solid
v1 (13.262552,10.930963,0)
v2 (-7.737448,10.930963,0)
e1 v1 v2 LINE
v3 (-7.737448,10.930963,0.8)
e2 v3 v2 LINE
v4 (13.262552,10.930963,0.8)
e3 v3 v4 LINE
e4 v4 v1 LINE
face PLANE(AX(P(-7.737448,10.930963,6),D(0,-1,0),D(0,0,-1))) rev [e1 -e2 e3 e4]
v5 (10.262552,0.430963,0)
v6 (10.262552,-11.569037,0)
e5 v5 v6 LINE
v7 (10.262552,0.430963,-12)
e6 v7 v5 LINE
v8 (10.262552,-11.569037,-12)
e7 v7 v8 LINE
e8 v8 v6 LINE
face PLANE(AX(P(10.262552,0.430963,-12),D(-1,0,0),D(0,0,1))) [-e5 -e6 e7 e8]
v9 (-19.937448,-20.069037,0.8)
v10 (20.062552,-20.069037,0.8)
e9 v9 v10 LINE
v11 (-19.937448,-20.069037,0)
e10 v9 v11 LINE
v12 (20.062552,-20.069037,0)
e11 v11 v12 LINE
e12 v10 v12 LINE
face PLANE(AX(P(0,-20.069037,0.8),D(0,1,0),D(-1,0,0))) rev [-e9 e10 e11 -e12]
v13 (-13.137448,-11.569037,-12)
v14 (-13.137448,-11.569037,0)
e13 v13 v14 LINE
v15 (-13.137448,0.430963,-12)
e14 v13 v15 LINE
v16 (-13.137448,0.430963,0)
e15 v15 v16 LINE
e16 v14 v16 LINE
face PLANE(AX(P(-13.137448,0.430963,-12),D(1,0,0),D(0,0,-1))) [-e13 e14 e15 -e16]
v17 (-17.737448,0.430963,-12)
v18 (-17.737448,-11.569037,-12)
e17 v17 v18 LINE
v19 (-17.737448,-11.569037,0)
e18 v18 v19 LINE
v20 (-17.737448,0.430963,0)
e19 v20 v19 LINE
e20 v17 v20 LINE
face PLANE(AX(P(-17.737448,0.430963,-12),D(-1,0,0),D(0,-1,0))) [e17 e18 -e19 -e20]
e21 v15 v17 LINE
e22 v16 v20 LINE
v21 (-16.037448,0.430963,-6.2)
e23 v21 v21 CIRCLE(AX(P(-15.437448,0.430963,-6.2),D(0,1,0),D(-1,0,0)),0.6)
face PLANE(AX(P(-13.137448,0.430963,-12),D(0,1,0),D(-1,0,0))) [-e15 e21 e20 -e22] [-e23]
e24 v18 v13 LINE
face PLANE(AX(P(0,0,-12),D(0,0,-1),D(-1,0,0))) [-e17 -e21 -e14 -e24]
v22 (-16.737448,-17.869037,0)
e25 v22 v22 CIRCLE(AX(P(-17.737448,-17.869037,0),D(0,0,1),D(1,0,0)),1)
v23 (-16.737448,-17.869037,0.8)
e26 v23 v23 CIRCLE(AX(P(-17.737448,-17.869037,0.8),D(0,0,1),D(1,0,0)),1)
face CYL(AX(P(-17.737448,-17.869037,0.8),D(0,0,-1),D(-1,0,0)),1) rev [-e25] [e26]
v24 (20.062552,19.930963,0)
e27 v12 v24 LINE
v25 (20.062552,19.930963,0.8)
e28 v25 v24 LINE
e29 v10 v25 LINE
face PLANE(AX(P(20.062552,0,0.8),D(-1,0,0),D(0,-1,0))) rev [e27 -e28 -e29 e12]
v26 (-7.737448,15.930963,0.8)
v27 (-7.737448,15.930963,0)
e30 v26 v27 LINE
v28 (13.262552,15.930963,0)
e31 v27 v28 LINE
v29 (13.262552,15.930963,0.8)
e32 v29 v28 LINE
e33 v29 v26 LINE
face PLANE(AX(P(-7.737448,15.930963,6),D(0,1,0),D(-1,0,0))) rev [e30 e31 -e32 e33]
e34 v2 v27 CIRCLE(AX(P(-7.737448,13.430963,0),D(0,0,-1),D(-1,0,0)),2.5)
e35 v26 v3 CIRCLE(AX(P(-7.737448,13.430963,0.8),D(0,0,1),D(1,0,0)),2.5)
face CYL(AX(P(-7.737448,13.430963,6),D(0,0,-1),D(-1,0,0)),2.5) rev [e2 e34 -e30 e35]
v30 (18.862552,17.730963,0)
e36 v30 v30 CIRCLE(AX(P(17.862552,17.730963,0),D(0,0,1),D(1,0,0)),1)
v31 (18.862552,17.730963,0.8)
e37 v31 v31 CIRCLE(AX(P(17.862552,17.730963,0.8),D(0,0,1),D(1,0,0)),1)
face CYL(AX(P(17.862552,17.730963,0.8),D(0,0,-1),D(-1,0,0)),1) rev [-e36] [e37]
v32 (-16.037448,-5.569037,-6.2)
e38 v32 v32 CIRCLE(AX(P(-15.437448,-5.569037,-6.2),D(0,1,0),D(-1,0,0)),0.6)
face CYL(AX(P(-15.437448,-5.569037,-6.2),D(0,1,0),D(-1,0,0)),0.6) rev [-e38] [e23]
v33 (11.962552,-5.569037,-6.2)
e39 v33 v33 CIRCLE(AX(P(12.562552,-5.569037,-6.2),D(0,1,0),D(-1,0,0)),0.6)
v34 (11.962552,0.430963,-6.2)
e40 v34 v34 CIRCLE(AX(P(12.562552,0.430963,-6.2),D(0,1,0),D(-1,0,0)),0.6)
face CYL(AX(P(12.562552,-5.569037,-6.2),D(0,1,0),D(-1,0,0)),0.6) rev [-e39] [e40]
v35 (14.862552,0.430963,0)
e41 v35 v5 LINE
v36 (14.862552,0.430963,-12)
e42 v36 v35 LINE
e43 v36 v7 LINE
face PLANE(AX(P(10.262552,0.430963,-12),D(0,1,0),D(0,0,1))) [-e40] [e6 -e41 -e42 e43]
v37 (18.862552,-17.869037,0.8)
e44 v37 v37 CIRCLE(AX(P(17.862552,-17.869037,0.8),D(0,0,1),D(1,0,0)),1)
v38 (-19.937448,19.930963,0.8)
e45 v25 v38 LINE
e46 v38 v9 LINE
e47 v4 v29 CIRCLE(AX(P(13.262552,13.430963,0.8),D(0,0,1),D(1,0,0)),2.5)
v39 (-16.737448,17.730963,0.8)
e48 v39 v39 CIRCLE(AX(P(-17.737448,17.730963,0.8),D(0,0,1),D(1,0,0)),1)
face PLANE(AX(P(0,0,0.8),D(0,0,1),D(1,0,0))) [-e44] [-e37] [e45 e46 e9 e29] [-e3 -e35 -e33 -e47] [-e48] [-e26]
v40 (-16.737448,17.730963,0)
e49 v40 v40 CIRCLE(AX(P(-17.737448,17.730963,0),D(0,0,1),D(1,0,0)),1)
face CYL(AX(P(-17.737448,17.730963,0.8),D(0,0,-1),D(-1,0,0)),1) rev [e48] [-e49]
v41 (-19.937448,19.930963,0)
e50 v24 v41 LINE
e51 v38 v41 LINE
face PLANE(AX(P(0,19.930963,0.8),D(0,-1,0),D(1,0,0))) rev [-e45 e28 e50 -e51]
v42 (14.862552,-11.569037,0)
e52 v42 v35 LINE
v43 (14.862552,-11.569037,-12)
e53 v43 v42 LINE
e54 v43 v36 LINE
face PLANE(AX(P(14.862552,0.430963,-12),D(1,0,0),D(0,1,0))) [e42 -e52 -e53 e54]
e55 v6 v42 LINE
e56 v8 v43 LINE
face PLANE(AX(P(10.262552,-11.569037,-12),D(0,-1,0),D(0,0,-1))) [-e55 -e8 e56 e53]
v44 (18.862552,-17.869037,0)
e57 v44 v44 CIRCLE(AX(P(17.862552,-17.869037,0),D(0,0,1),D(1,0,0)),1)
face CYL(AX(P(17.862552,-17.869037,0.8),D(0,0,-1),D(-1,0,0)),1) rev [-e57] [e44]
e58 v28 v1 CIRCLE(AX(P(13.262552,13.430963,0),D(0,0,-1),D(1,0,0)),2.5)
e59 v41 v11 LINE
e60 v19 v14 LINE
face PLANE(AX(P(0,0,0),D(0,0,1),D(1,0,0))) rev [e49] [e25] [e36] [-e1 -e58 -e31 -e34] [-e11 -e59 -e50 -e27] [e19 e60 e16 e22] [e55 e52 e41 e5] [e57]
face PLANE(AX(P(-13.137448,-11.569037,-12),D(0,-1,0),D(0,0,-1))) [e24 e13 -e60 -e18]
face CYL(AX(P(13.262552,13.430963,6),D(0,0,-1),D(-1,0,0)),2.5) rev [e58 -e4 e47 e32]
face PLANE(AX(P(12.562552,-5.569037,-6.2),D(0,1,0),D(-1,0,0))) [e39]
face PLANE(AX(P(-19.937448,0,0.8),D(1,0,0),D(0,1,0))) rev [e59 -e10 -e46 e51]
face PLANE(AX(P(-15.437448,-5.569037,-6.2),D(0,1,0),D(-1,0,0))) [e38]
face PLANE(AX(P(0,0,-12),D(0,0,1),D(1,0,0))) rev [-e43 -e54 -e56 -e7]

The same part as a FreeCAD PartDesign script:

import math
import FreeCAD as App
import Part
import Sketcher

V = App.Vector
Q = App.Units.Quantity


def add_polygon(sketch, points):
    """Adds a closed chain of lines whose ends are joined by coincident constraints."""
    first, n = sketch.GeometryCount, len(points)
    for a, b in zip(points, points[1:] + points[:1]):
        sketch.addGeometry(Part.LineSegment(App.Vector(*a, 0), App.Vector(*b, 0)), False)
    for i in range(n):
        sketch.addConstraint(Sketcher.Constraint("Coincident", first + i, 2, first + (i + 1) % n, 1))

doc = App.newDocument("Part")
body = doc.addObject("PartDesign::Body", "Body")

# Sketch on XY plane
sketch1 = body.newObject("Sketcher::SketchObject", "Sketch")
sketch1.AttachmentSupport = (doc.getObject("XY_Plane"), [""])
sketch1.MapMode = "FlatFace"
add_polygon(sketch1, [(-19.937448, 19.930963), (-19.937448, -20.069037), (20.062552, -20.069037), (20.062552, 19.930963)])  # lines 0-3
sketch1.addGeometry(Part.Circle(V(-17.737448, -17.869037, 0), V(0, 0, 1), 1), False)  # 4
sketch1.addGeometry(Part.Circle(V(17.862552, -17.869037, 0), V(0, 0, 1), 1), False)  # 5
sketch1.addGeometry(Part.Circle(V(-17.737448, 17.730963, 0), V(0, 0, 1), 1), False)  # 6
sketch1.addGeometry(Part.Circle(V(17.862552, 17.730963, 0), V(0, 0, 1), 1), False)  # 7
sketch1.addConstraint([
    Sketcher.Constraint("Vertical", 0),
    Sketcher.Constraint("Horizontal", 1),
    Sketcher.Constraint("Vertical", 2),
    Sketcher.Constraint("Horizontal", 3),
    Sketcher.Constraint("Equal", 4, 5),
    Sketcher.Constraint("Equal", 5, 6),
    Sketcher.Constraint("Equal", 6, 7),
    Sketcher.Constraint("Horizontal", 4, 3, 5, 3),
    Sketcher.Constraint("Horizontal", 6, 3, 7, 3),
    Sketcher.Constraint("Vertical", 4, 3, 6, 3),
    Sketcher.Constraint("Vertical", 5, 3, 7, 3),
    Sketcher.Constraint("Equal", 3, 0),
    Sketcher.Constraint("Diameter", 4, Q("2 mm")),
    Sketcher.Constraint("DistanceX", 1, 1, 1, 2, Q("40 mm")),
    Sketcher.Constraint("DistanceX", 4, 3, 5, 3, Q("35.6 mm")),
    Sketcher.Constraint("DistanceY", 4, 3, 6, 3, Q("35.6 mm")),
    Sketcher.Constraint("DistanceX", 0, 2, 4, 3, Q("2.2 mm")),
    Sketcher.Constraint("DistanceY", 0, 2, 4, 3, Q("2.2 mm")),
    Sketcher.Constraint("DistanceX", 4, 3, -1, 1, Q("17.737448 mm")),
    Sketcher.Constraint("DistanceY", 4, 3, -1, 1, Q("17.869037 mm")),
])
pad1 = body.newObject("PartDesign::Pad", "Pad")
pad1.Profile = sketch1
pad1.Length = 0.8

# Sketch on XY plane
sketch2 = body.newObject("Sketcher::SketchObject", "Sketch001")
sketch2.AttachmentSupport = (doc.getObject("XY_Plane"), [""])
sketch2.MapMode = "FlatFace"
sketch2.AttachmentOffset = App.Placement(V(0, 0, 0.8), App.Rotation())
add_polygon(sketch2, [(10.262552, 0.430963), (10.262552, -11.569037), (14.862552, -11.569037), (14.862552, 0.430963)])  # lines 0-3
add_polygon(sketch2, [(-17.737448, 0.430963), (-17.737448, -11.569037), (-13.137448, -11.569037), (-13.137448, 0.430963)])  # lines 4-7
sketch2.addConstraint([
    Sketcher.Constraint("Vertical", 0),
    Sketcher.Constraint("Horizontal", 1),
    Sketcher.Constraint("Vertical", 2),
    Sketcher.Constraint("Horizontal", 3),
    Sketcher.Constraint("Vertical", 4),
    Sketcher.Constraint("Horizontal", 5),
    Sketcher.Constraint("Vertical", 6),
    Sketcher.Constraint("Horizontal", 7),
    Sketcher.Constraint("Horizontal", 1, 2, 4, 2),
    Sketcher.Constraint("Horizontal", 3, 2, 6, 2),
    Sketcher.Constraint("Equal", 3, 5),
    Sketcher.Constraint("DistanceY", 0, 2, 0, 1, Q("12 mm")),
    Sketcher.Constraint("DistanceX", 1, 1, 1, 2, Q("4.6 mm")),
    Sketcher.Constraint("DistanceX", 4, 2, 0, 2, Q("28 mm")),
    Sketcher.Constraint("DistanceX", -1, 1, 0, 2, Q("10.262552 mm")),
    Sketcher.Constraint("DistanceY", 0, 2, -1, 1, Q("11.569037 mm")),
])
pad2 = body.newObject("PartDesign::Pad", "Pad001")
pad2.Profile = sketch2
pad2.Length = 12.8
pad2.Reversed = True

# Sketch on XZ plane
sketch3 = body.newObject("Sketcher::SketchObject", "Sketch002")
sketch3.AttachmentSupport = (doc.getObject("XZ_Plane"), [""])
sketch3.MapMode = "FlatFace"
sketch3.AttachmentOffset = App.Placement(V(0, 0, -0.430963), App.Rotation())
sketch3.addGeometry([
    Part.Circle(V(-15.437448, -6.2, 0), V(0, 0, 1), 0.6),
    Part.Circle(V(12.562552, -6.2, 0), V(0, 0, 1), 0.6),
], False)
sketch3.addConstraint([
    Sketcher.Constraint("Equal", 0, 1),
    Sketcher.Constraint("Horizontal", 0, 3, 1, 3),
    Sketcher.Constraint("Diameter", 0, Q("1.2 mm")),
    Sketcher.Constraint("DistanceX", 0, 3, 1, 3, Q("28 mm")),
    Sketcher.Constraint("DistanceY", 0, 3, -1, 1, Q("6.2 mm")),
    Sketcher.Constraint("DistanceX", 0, 3, -1, 1, Q("15.437448 mm")),
])
pocket1 = body.newObject("PartDesign::Pocket", "Pocket")
pocket1.Profile = sketch3
pocket1.Length = 6
pocket1.Reversed = True

# Sketch on XY plane
sketch4 = body.newObject("Sketcher::SketchObject", "Sketch003")
sketch4.AttachmentSupport = (doc.getObject("XY_Plane"), [""])
sketch4.MapMode = "FlatFace"
sketch4.addGeometry([
    Part.LineSegment(V(13.262552, 10.930963, 0), V(-7.737448, 10.930963, 0)),
    Part.ArcOfCircle(Part.Circle(V(-7.737448, 13.430963, 0), V(0, 0, 1), 2.5), math.radians(90), math.radians(270)),
    Part.LineSegment(V(-7.737448, 15.930963, 0), V(13.262552, 15.930963, 0)),
    Part.ArcOfCircle(Part.Circle(V(13.262552, 13.430963, 0), V(0, 0, 1), 2.5), math.radians(-90), math.radians(90)),
], False)
sketch4.addConstraint([
    Sketcher.Constraint("Tangent", 0, 2, 1, 2),
    Sketcher.Constraint("Tangent", 1, 1, 2, 1),
    Sketcher.Constraint("Tangent", 2, 2, 3, 2),
    Sketcher.Constraint("Tangent", 3, 1, 0, 1),
    Sketcher.Constraint("Horizontal", 0),
    Sketcher.Constraint("Horizontal", 2),
    Sketcher.Constraint("Radius", 1, Q("2.5 mm")),
    Sketcher.Constraint("DistanceX", 0, 2, 0, 1, Q("21 mm")),
    Sketcher.Constraint("DistanceX", 1, 3, -1, 1, Q("7.737448 mm")),
    Sketcher.Constraint("DistanceY", -1, 1, 1, 3, Q("13.430963 mm")),
])
pocket2 = body.newObject("PartDesign::Pocket", "Pocket001")
pocket2.Profile = sketch4
pocket2.Length = 6
pocket2.Reversed = True

doc.recompute()
